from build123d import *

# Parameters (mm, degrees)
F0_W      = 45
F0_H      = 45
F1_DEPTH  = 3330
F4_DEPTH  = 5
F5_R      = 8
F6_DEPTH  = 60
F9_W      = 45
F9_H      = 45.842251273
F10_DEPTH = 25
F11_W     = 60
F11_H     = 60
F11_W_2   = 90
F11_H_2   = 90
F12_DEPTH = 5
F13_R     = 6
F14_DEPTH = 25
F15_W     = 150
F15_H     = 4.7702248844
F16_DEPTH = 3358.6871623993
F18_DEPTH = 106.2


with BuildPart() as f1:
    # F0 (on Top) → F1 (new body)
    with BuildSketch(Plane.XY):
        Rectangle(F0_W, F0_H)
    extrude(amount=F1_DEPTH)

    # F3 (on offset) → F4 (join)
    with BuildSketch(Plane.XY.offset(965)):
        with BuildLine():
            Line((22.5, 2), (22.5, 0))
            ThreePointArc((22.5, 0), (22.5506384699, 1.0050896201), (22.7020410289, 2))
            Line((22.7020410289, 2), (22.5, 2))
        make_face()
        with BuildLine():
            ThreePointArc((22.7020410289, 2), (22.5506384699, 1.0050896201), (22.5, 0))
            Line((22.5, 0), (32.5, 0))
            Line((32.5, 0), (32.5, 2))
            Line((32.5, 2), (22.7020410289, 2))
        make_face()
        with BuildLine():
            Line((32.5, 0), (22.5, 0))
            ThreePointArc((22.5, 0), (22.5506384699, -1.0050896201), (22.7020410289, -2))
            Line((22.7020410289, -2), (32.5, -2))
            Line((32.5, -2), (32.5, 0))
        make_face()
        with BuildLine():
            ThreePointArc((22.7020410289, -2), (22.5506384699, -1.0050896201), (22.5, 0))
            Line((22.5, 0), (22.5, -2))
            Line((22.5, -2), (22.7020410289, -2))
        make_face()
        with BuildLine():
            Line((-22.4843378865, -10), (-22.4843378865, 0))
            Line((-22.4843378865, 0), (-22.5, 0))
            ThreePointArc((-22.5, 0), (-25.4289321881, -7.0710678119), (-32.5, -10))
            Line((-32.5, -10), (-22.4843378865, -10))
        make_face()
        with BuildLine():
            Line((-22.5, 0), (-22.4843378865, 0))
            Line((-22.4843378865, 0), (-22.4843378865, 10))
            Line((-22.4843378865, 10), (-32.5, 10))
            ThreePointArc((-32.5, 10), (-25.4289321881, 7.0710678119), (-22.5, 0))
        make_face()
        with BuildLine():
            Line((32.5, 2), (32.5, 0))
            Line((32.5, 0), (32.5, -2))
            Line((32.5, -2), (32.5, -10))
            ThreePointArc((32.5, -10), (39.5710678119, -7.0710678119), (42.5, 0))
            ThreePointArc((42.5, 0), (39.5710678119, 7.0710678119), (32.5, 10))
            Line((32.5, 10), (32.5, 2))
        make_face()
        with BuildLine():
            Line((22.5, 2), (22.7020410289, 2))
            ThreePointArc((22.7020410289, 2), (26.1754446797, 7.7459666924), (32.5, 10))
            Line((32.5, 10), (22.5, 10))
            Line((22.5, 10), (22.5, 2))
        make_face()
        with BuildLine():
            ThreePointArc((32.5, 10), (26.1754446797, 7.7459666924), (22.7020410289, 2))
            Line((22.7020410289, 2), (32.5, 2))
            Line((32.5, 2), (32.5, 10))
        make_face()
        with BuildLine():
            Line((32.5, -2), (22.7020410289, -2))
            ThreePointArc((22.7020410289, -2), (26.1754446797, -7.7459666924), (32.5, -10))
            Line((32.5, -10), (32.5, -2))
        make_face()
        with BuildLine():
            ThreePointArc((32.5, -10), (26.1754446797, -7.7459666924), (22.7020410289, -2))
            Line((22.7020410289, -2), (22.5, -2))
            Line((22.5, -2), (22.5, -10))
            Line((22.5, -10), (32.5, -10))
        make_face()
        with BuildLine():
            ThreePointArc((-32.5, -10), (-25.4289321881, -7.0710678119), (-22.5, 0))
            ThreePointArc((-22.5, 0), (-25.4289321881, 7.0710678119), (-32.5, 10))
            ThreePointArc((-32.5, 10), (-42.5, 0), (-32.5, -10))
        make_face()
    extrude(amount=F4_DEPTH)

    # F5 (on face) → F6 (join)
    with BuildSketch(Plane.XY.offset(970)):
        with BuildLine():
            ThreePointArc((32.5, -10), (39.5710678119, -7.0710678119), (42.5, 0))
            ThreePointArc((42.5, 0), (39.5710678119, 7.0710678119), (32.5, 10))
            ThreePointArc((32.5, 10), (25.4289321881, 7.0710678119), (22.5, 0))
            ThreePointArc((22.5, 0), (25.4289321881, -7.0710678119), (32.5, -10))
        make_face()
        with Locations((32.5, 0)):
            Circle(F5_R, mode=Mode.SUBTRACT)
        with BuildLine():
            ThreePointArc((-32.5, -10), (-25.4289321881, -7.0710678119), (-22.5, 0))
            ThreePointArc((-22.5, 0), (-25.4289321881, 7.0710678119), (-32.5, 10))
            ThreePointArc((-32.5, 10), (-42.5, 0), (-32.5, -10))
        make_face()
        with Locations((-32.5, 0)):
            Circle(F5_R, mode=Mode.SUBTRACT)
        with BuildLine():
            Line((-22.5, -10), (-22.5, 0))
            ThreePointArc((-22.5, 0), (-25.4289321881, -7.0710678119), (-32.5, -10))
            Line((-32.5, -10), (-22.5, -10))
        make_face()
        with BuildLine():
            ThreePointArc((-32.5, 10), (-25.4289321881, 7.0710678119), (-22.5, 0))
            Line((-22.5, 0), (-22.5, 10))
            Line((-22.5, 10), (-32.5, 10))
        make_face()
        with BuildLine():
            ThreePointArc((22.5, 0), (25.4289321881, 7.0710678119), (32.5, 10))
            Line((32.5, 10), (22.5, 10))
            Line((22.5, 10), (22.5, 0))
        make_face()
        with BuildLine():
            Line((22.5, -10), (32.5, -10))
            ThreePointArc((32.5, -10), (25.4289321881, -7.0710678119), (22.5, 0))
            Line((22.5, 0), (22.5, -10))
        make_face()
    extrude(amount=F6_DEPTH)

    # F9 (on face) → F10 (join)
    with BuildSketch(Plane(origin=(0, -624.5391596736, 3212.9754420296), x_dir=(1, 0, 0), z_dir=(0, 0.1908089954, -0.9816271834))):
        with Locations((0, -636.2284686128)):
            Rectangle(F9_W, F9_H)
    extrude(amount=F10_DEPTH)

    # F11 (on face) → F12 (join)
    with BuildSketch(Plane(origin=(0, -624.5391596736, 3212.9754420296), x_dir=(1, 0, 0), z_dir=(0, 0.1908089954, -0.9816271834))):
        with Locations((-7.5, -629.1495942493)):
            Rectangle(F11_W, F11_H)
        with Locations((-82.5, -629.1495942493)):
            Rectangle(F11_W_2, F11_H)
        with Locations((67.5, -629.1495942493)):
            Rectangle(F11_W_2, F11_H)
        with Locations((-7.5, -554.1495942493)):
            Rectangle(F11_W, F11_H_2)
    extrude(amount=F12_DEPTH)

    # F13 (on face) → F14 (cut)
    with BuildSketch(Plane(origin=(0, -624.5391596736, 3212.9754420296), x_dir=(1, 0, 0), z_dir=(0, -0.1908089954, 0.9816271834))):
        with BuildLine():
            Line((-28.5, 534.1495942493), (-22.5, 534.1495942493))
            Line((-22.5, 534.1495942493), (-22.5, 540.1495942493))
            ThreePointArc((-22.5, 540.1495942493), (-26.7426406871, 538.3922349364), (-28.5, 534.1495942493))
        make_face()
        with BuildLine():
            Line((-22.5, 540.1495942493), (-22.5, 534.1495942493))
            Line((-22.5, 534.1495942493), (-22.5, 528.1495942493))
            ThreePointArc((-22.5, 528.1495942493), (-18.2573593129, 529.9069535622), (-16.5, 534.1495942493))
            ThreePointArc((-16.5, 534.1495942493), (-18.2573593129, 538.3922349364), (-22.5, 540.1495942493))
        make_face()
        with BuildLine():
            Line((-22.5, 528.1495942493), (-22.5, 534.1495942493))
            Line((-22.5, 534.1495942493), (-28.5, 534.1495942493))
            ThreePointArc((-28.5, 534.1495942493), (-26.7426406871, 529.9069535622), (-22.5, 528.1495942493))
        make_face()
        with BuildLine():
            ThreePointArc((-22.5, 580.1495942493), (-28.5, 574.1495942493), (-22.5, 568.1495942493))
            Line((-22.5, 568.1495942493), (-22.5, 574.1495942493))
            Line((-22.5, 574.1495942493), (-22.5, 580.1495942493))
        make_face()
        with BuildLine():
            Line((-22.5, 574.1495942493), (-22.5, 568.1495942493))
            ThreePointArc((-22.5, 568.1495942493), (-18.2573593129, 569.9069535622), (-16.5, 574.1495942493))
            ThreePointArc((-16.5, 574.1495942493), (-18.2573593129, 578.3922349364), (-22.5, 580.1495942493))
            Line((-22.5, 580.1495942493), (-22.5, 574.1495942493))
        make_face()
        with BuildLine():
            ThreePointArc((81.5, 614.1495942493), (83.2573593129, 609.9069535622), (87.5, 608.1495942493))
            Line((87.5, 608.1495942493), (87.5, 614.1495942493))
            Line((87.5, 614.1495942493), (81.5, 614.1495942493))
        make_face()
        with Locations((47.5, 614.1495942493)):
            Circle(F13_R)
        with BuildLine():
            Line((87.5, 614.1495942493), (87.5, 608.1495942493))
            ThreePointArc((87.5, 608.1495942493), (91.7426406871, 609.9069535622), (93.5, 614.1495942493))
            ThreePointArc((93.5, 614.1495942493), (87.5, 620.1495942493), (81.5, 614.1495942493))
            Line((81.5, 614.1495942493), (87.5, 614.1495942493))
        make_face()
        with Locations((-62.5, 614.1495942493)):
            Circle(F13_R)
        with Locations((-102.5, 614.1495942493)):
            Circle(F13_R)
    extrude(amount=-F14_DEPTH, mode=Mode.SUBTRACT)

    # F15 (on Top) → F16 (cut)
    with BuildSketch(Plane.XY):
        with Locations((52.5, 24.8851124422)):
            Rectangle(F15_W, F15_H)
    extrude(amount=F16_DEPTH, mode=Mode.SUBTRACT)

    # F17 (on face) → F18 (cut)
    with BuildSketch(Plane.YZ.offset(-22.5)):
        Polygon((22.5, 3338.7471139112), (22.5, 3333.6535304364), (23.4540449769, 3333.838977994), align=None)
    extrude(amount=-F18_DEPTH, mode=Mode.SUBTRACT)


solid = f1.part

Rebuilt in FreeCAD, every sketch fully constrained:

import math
import FreeCAD as App
import Part
import Sketcher
Q = App.Units.Quantity


def add_polygon(sketch, points):
    """Adds a closed chain of lines whose ends are joined by coincident constraints."""
    first, n = sketch.GeometryCount, len(points)
    for a, b in zip(points, points[1:] + points[:1]):
        sketch.addGeometry(Part.LineSegment(App.Vector(*a, 0), App.Vector(*b, 0)), False)
    for i in range(n):
        sketch.addConstraint(Sketcher.Constraint("Coincident", first + i, 2, first + (i + 1) % n, 1))

doc = App.newDocument("Part")
body = doc.addObject("PartDesign::Body", "Body")

# Sketch on XY plane
sketch1 = body.newObject("Sketcher::SketchObject", "Sketch")
sketch1.AttachmentSupport = (doc.getObject("XY_Plane"), [""])
sketch1.MapMode = "FlatFace"
add_polygon(sketch1, [(-22, 22), (-22, -22), (22, -22), (22, 22)])  # lines 0-3
sketch1.addConstraint([
    Sketcher.Constraint("Vertical", 0),
    Sketcher.Constraint("Horizontal", 1),
    Sketcher.Constraint("Vertical", 2),
    Sketcher.Constraint("Horizontal", 3),
    Sketcher.Constraint("Symmetric", 0, 2, 2, 2, -1, 1),
    Sketcher.Constraint("Equal", 3, 0),
    Sketcher.Constraint("DistanceX", 1, 1, 1, 2, 45.0),
])
pad1 = body.newObject("PartDesign::Pad", "Pad")
pad1.Profile = sketch1
pad1.Length = 3330

# Sketch on XY plane
sketch2 = body.newObject("Sketcher::SketchObject", "Sketch001")
sketch2.AttachmentSupport = (doc.getObject("XY_Plane"), [""])
sketch2.MapMode = "FlatFace"
sketch2.AttachmentOffset = App.Placement(App.Vector(0, 0, 965), App.Rotation())
sketch2.addGeometry([
    Part.ArcOfCircle(Part.Circle(App.Vector(32, 0, 0), App.Vector(0, 0, 1), 10), math.radians(0), math.radians(90)),  # 0
    Part.LineSegment(App.Vector(32, 10, 0), App.Vector(22, 10, 0)),  # 1
    Part.LineSegment(App.Vector(22, 10, 0), App.Vector(22, -10, 0)),  # 2
    Part.LineSegment(App.Vector(22, -10, 0), App.Vector(32, -10, 0)),  # 3
    Part.ArcOfCircle(Part.Circle(App.Vector(32, 0, 0), App.Vector(0, 0, 1), 10), math.radians(-90), math.radians(0)),  # 4
    Part.LineSegment(App.Vector(-22, -10, 0), App.Vector(-22, 10, 0)),  # 5
    Part.LineSegment(App.Vector(-22, 10, 0), App.Vector(-32, 10, 0)),  # 6
    Part.ArcOfCircle(Part.Circle(App.Vector(-32, 0, 0), App.Vector(0, 0, 1), 10), math.radians(90), math.radians(270)),  # 7
    Part.LineSegment(App.Vector(-32, -10, 0), App.Vector(-22, -10, 0)),  # 8
], False)
sketch2.addConstraint([
    Sketcher.Constraint("Tangent", 0, 2, 1, 1),
    Sketcher.Constraint("Coincident", 1, 2, 2, 1),
    Sketcher.Constraint("Coincident", 2, 2, 3, 1),
    Sketcher.Constraint("Tangent", 3, 2, 4, 1),
    Sketcher.Constraint("Tangent", 4, 2, 0, 1),
    Sketcher.Constraint("Coincident", 5, 2, 6, 1),
    Sketcher.Constraint("Tangent", 6, 2, 7, 1),
    Sketcher.Constraint("Tangent", 7, 2, 8, 1),
    Sketcher.Constraint("Coincident", 8, 2, 5, 1),
    Sketcher.Constraint("Horizontal", 1),
    Sketcher.Constraint("Vertical", 2),
    Sketcher.Constraint("Horizontal", 3),
    Sketcher.Constraint("Vertical", 5),
    Sketcher.Constraint("Horizontal", 6),
    Sketcher.Constraint("Horizontal", 8),
    Sketcher.Constraint("Equal", 0, 4),
    Sketcher.Constraint("Equal", 4, 7),
    Sketcher.Constraint("Symmetric", 0, 3, 7, 3, -1, 1),
    Sketcher.Constraint("PointOnObject", 0, 3, -1),
    Sketcher.Constraint("PointOnObject", 4, 2, -1),
    Sketcher.Constraint("Radius", 0, 10.0),
    Sketcher.Constraint("DistanceX", 1, 2, 1, 1, 10.0),
    Sketcher.Constraint("DistanceX", 7, 3, 0, 3, 65.0),
    Sketcher.Constraint("DistanceX", 6, 2, 6, 1, 10.015662),
])
pad2 = body.newObject("PartDesign::Pad", "Pad001")
pad2.Profile = sketch2
pad2.Length = 5

# Sketch on XY plane
sketch3 = body.newObject("Sketcher::SketchObject", "Sketch002")
sketch3.AttachmentSupport = (doc.getObject("XY_Plane"), [""])
sketch3.MapMode = "FlatFace"
sketch3.AttachmentOffset = App.Placement(App.Vector(0, 0, 970), App.Rotation())
sketch3.addGeometry([
    Part.ArcOfCircle(Part.Circle(App.Vector(32, 0, 0), App.Vector(0, 0, 1), 10), math.radians(-90), math.radians(0)),  # 0
    Part.ArcOfCircle(Part.Circle(App.Vector(32, 0, 0), App.Vector(0, 0, 1), 10), math.radians(0), math.radians(90)),  # 1
    Part.LineSegment(App.Vector(32, 10, 0), App.Vector(22, 10, 0)),  # 2
    Part.LineSegment(App.Vector(22, 10, 0), App.Vector(22, -10, 0)),  # 3
    Part.LineSegment(App.Vector(22, -10, 0), App.Vector(32, -10, 0)),  # 4
    Part.Circle(App.Vector(32, 0, 0), App.Vector(0, 0, 1), 8),  # 5
    Part.ArcOfCircle(Part.Circle(App.Vector(-32, 0, 0), App.Vector(0, 0, 1), 10), math.radians(90), math.radians(270)),  # 6
    Part.LineSegment(App.Vector(-32, -10, 0), App.Vector(-22, -10, 0)),  # 7
    Part.LineSegment(App.Vector(-22, -10, 0), App.Vector(-22, 10, 0)),  # 8
    Part.LineSegment(App.Vector(-22, 10, 0), App.Vector(-32, 10, 0)),  # 9
    Part.Circle(App.Vector(-32, 0, 0), App.Vector(0, 0, 1), 8),  # 10
], False)
sketch3.addConstraint([
    Sketcher.Constraint("Tangent", 0, 2, 1, 1),
    Sketcher.Constraint("Tangent", 1, 2, 2, 1),
    Sketcher.Constraint("Coincident", 2, 2, 3, 1),
    Sketcher.Constraint("Coincident", 3, 2, 4, 1),
    Sketcher.Constraint("Tangent", 4, 2, 0, 1),
    Sketcher.Constraint("Tangent", 6, 2, 7, 1),
    Sketcher.Constraint("Coincident", 7, 2, 8, 1),
    Sketcher.Constraint("Coincident", 8, 2, 9, 1),
    Sketcher.Constraint("Tangent", 9, 2, 6, 1),
    Sketcher.Constraint("Horizontal", 2),
    Sketcher.Constraint("Vertical", 3),
    Sketcher.Constraint("Horizontal", 4),
    Sketcher.Constraint("Horizontal", 7),
    Sketcher.Constraint("Vertical", 8),
    Sketcher.Constraint("Horizontal", 9),
    Sketcher.Constraint("Coincident", 5, 3, 0, 3),
    Sketcher.Constraint("Coincident", 10, 3, 6, 3),
    Sketcher.Constraint("Equal", 0, 1),
    Sketcher.Constraint("Equal", 1, 6),
    Sketcher.Constraint("Equal", 5, 10),
    Sketcher.Constraint("Symmetric", 0, 3, 6, 3, -1, 1),
    Sketcher.Constraint("Symmetric", 3, 2, 7, 2, -2),
    Sketcher.Constraint("PointOnObject", 0, 2, -1),
    Sketcher.Constraint("Diameter", 5, 16.0),
    Sketcher.Constraint("Radius", 0, 10.0),
    Sketcher.Constraint("DistanceX", 2, 2, 2, 1, 10.0),
    Sketcher.Constraint("DistanceX", 6, 3, 0, 3, 65.0),
])
pad3 = body.newObject("PartDesign::Pad", "Pad002")
pad3.Profile = sketch3
pad3.Length = 60

# Sketch on an angled plane
sketch4 = body.newObject("Sketcher::SketchObject", "Sketch003")
sketch4.Placement = App.Placement(App.Vector(0, -624.53916, 3212.975442), App.Rotation(App.Vector(1, 0, 0), App.Vector(0, -0.981627183, -0.190808995), App.Vector(0, 0.190808995, -0.981627183), "ZXY"))
add_polygon(sketch4, [(-22, -613), (-22, -659), (22, -659), (22, -613)])  # lines 0-3
sketch4.addConstraint([
    Sketcher.Constraint("Vertical", 0),
    Sketcher.Constraint("Horizontal", 1),
    Sketcher.Constraint("Vertical", 2),
    Sketcher.Constraint("Horizontal", 3),
    Sketcher.Constraint("DistanceX", 1, 1, 1, 2, 45.0),
    Sketcher.Constraint("DistanceX", 0, 2, -1, 1, 22.5),
    Sketcher.Constraint("DistanceY", 0, 2, 0, 1, 45.842251),
    Sketcher.Constraint("DistanceY", 0, 2, -1, 1, 659.149594),
])
pad4 = body.newObject("PartDesign::Pad", "Pad003")
pad4.Profile = sketch4
pad4.Length = 25

# Sketch on an angled plane
sketch5 = body.newObject("Sketcher::SketchObject", "Sketch004")
sketch5.Placement = App.Placement(App.Vector(0, -624.53916, 3212.975442), App.Rotation(App.Vector(1, 0, 0), App.Vector(0, -0.981627183, -0.190808995), App.Vector(0, 0.190808995, -0.981627183), "ZXY"))
add_polygon(sketch5, [(-128, -599), (-128, -659), (112, -659), (112, -599), (22, -599), (22, -509), (-38, -509), (-38, -599)])  # lines 0-7
sketch5.addConstraint([
    Sketcher.Constraint("Vertical", 0),
    Sketcher.Constraint("Horizontal", 1),
    Sketcher.Constraint("Vertical", 2),
    Sketcher.Constraint("Horizontal", 3),
    Sketcher.Constraint("Vertical", 4),
    Sketcher.Constraint("Horizontal", 5),
    Sketcher.Constraint("Vertical", 6),
    Sketcher.Constraint("Horizontal", 7),
    Sketcher.Constraint("Horizontal", 3, 2, 6, 2),
    Sketcher.Constraint("Equal", 3, 7),
    Sketcher.Constraint("Equal", 5, 0),
    Sketcher.Constraint("Equal", 7, 4),
    Sketcher.Constraint("DistanceX", 1, 1, 1, 2, 240.0),
    Sketcher.Constraint("DistanceX", 3, 2, 3, 1, 90.0),
    Sketcher.Constraint("DistanceX", 0, 2, -1, 1, 127.5),
    Sketcher.Constraint("DistanceY", 0, 2, -1, 1, 659.149594),
])
pad5 = body.newObject("PartDesign::Pad", "Pad004")
pad5.Profile = sketch5
pad5.Length = 5

# Sketch on an angled plane
sketch6 = body.newObject("Sketcher::SketchObject", "Sketch005")
sketch6.Placement = App.Placement(App.Vector(0, -624.53916, 3212.975442), App.Rotation(App.Vector(1, 0, 0), App.Vector(0, 0.981627183, 0.190808995), App.Vector(0, -0.190808995, 0.981627183), "ZXY"))
sketch6.addGeometry([
    Part.ArcOfCircle(Part.Circle(App.Vector(-22, 534, 0), App.Vector(0, 0, 1), 6), math.radians(-90), math.radians(0)),  # 0
    Part.ArcOfCircle(Part.Circle(App.Vector(-22, 534, 0), App.Vector(0, 0, 1), 6), math.radians(0), math.radians(90)),  # 1
    Part.ArcOfCircle(Part.Circle(App.Vector(-22, 534, 0), App.Vector(0, 0, 1), 6), math.radians(90), math.radians(180)),  # 2
    Part.ArcOfCircle(Part.Circle(App.Vector(-22, 534, 0), App.Vector(0, 0, 1), 6), math.radians(180), math.radians(270)),  # 3
    Part.ArcOfCircle(Part.Circle(App.Vector(-22, 574, 0), App.Vector(0, 0, 1), 6), math.radians(90), math.radians(270)),  # 4
    Part.ArcOfCircle(Part.Circle(App.Vector(-22, 574, 0), App.Vector(0, 0, 1), 6), math.radians(-90), math.radians(0)),  # 5
    Part.ArcOfCircle(Part.Circle(App.Vector(-22, 574, 0), App.Vector(0, 0, 1), 6), math.radians(0), math.radians(90)),  # 6
    Part.ArcOfCircle(Part.Circle(App.Vector(88, 614, 0), App.Vector(0, 0, 1), 6), math.radians(180), math.radians(270)),  # 7
    Part.ArcOfCircle(Part.Circle(App.Vector(88, 614, 0), App.Vector(0, 0, 1), 6), math.radians(-90), math.radians(0)),  # 8
    Part.ArcOfCircle(Part.Circle(App.Vector(88, 614, 0), App.Vector(0, 0, 1), 6), math.radians(0), math.radians(180)),  # 9
    Part.Circle(App.Vector(48, 614, 0), App.Vector(0, 0, 1), 6),  # 10
    Part.Circle(App.Vector(-62, 614, 0), App.Vector(0, 0, 1), 6),  # 11
    Part.Circle(App.Vector(-102, 614, 0), App.Vector(0, 0, 1), 6),  # 12
], False)
sketch6.addConstraint([
    Sketcher.Constraint("Tangent", 0, 2, 1, 1),
    Sketcher.Constraint("Tangent", 1, 2, 2, 1),
    Sketcher.Constraint("Tangent", 2, 2, 3, 1),
    Sketcher.Constraint("Tangent", 3, 2, 0, 1),
    Sketcher.Constraint("Tangent", 4, 2, 5, 1),
    Sketcher.Constraint("Tangent", 5, 2, 6, 1),
    Sketcher.Constraint("Tangent", 6, 2, 4, 1),
    Sketcher.Constraint("Tangent", 7, 2, 8, 1),
    Sketcher.Constraint("Tangent", 8, 2, 9, 1),
    Sketcher.Constraint("Tangent", 9, 2, 7, 1),
    Sketcher.Constraint("Equal", 0, 1),
    Sketcher.Constraint("Equal", 3, 4),
    Sketcher.Constraint("Equal", 6, 7),
    Sketcher.Constraint("Equal", 9, 10),
    Sketcher.Constraint("Equal", 10, 11),
    Sketcher.Constraint("Equal", 11, 12),
    Sketcher.Constraint("Horizontal", 9, 3, 10, 3),
    Sketcher.Constraint("Horizontal", 10, 3, 11, 3),
    Sketcher.Constraint("Horizontal", 11, 3, 12, 3),
    Sketcher.Constraint("Horizontal", 3, 3, 0, 2),
    Sketcher.Constraint("Horizontal", 0, 2, 2, 2),
    Sketcher.Constraint("Horizontal", 6, 3, 5, 2),
    Sketcher.Constraint("Horizontal", 12, 3, 8, 2),
    Sketcher.Constraint("Horizontal", 8, 2, 9, 2),
    Sketcher.Constraint("Vertical", 3, 3, 4, 3),
    Sketcher.Constraint("Vertical", 6, 3, 1, 2),
    Sketcher.Constraint("Vertical", 1, 2, 3, 2),
    Sketcher.Constraint("Vertical", 3, 2, 4, 2),
    Sketcher.Constraint("Vertical", 4, 2, 6, 2),
    Sketcher.Constraint("Vertical", 9, 3, 7, 2),
    Sketcher.Constraint("Diameter", 10, 12.0),
    Sketcher.Constraint("DistanceY", 0, 3, 4, 3, 40.0),
    Sketcher.Constraint("DistanceX", 4, 3, 7, 3, 110.0),
    Sketcher.Constraint("DistanceY", 4, 3, 7, 3, 40.0),
    Sketcher.Constraint("DistanceX", 10, 3, 7, 3, 40.0),
    Sketcher.Constraint("DistanceX", 11, 3, 4, 3, 40.0),
    Sketcher.Constraint("DistanceX", 12, 3, 11, 3, 40.0),
    Sketcher.Constraint("DistanceX", 0, 3, -1, 1, 22.5),
    Sketcher.Constraint("DistanceY", -1, 1, 0, 3, 534.149594),
])
pocket1 = body.newObject("PartDesign::Pocket", "Pocket")
pocket1.Profile = sketch6
pocket1.Length = 25

# Sketch on XY plane
sketch7 = body.newObject("Sketcher::SketchObject", "Sketch006")
sketch7.AttachmentSupport = (doc.getObject("XY_Plane"), [""])
sketch7.MapMode = "FlatFace"
add_polygon(sketch7, [(-22.5, 27.3), (-22.5, 22.5), (127.5, 22.5), (127.5, 27.3)])  # lines 0-3
sketch7.addConstraint([
    Sketcher.Constraint("Vertical", 0),
    Sketcher.Constraint("Horizontal", 1),
    Sketcher.Constraint("Vertical", 2),
    Sketcher.Constraint("Horizontal", 3),
    Sketcher.Constraint("DistanceX", 1, 1, 1, 2, 150.0),
    Sketcher.Constraint("DistanceX", 0, 2, -1, 1, 22.5),
    Sketcher.Constraint("DistanceY", -1, 1, 0, 2, 22.5),
    Sketcher.Constraint("DistanceY", 0, 2, 0, 1, 4.770225),
])
pocket2 = body.newObject("PartDesign::Pocket", "Pocket001")
pocket2.Profile = sketch7
pocket2.Length = 3358.687162
pocket2.Reversed = True

# Sketch on YZ plane
sketch8 = body.newObject("Sketcher::SketchObject", "Sketch007")
sketch8.AttachmentSupport = (doc.getObject("YZ_Plane"), [""])
sketch8.MapMode = "FlatFace"
sketch8.AttachmentOffset = App.Placement(App.Vector(0, 0, -22.5), App.Rotation())
add_polygon(sketch8, [(22.5, 3338.7), (22.5, 3333.7), (23.5, 3333.8)])  # lines 0-2
sketch8.addConstraint([
    Sketcher.Constraint("Vertical", 0),
    Sketcher.Constraint("Perpendicular", 1, 2),
    Sketcher.Constraint("Angle", 1, Q("11 deg")),
    Sketcher.Constraint("Distance", 2, 5.0),
    Sketcher.Constraint("DistanceX", -1, 1, 0, 2, 22.5),
    Sketcher.Constraint("DistanceY", -1, 1, 0, 2, 3333.65353),
])
pocket3 = body.newObject("PartDesign::Pocket", "Pocket002")
pocket3.Profile = sketch8
pocket3.Length = 106.2

doc.recompute()
